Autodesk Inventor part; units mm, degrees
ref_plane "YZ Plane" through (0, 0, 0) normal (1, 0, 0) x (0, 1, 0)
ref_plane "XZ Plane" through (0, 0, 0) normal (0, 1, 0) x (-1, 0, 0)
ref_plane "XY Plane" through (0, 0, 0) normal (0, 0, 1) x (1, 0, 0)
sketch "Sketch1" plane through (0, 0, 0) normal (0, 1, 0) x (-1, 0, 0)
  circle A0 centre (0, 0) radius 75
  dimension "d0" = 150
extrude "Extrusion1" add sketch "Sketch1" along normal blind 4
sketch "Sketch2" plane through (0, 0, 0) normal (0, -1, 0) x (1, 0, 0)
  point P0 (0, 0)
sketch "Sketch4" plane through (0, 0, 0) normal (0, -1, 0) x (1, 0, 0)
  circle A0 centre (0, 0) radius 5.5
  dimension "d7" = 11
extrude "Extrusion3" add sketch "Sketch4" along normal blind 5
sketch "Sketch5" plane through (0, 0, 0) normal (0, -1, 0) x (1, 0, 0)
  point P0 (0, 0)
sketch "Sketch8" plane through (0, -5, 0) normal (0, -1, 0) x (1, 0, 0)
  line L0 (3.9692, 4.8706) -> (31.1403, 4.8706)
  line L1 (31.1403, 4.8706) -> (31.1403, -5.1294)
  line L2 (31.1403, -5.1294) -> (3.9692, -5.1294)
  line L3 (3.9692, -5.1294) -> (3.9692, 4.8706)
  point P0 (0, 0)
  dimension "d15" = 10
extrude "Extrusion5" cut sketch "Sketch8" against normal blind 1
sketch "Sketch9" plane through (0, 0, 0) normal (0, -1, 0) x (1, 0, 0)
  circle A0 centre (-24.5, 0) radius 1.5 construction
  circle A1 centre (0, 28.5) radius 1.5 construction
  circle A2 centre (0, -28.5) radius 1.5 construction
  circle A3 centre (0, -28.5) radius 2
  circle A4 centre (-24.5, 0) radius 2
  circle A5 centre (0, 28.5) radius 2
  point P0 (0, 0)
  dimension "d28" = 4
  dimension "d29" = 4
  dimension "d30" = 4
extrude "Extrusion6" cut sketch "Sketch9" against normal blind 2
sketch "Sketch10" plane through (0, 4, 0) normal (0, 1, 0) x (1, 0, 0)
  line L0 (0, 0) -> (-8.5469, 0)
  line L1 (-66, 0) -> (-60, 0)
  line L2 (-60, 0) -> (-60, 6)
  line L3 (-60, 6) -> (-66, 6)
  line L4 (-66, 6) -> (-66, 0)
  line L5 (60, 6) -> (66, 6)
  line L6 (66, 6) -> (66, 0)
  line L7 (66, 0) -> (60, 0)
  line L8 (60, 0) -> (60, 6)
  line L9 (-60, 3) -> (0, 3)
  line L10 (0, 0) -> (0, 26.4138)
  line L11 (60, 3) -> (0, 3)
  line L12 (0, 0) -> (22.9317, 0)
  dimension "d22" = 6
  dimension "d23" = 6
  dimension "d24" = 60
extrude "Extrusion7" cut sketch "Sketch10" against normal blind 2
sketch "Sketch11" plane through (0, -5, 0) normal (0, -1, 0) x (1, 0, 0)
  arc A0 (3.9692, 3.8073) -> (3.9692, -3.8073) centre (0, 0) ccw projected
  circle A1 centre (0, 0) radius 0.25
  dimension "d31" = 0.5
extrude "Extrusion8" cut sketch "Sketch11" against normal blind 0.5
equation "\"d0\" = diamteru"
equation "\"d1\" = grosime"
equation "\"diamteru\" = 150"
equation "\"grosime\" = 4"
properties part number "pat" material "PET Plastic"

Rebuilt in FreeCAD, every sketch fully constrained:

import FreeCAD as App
import Part
import Sketcher


def add_polygon(sketch, points):
    """Adds a closed chain of lines whose ends are joined by coincident constraints."""
    first, n = sketch.GeometryCount, len(points)
    for a, b in zip(points, points[1:] + points[:1]):
        sketch.addGeometry(Part.LineSegment(App.Vector(*a, 0), App.Vector(*b, 0)), False)
    for i in range(n):
        sketch.addConstraint(Sketcher.Constraint("Coincident", first + i, 2, first + (i + 1) % n, 1))

doc = App.newDocument("Part")
params = doc.addObject("Spreadsheet::Sheet", "Params")
for row, (alias, value) in enumerate([
    ("sketch1_diameter", "150 mm"),
    ("pad1_length", "4 mm"),
    ("sketch2_diameter", "11 mm"),
    ("pad2_length", "5 mm"),
    ("sketch3_height", "10 mm"),
    ("pocket1_length", "1 mm"),
    ("sketch4_diameter", "4 mm"),
    ("pocket2_length", "2 mm"),
    ("sketch5_width", "6 mm"),
    ("pocket3_length", "2 mm"),
    ("sketch6_diameter", "0.5 mm"),
    ("pocket4_length", "0.5 mm"),
], start=1):
    params.set(f"A{row}", alias)
    params.set(f"B{row}", "=" + value)
    params.setAlias(f"B{row}", alias)

body = doc.addObject("PartDesign::Body", "Body")

# Sketch on XZ plane
sketch1 = body.newObject("Sketcher::SketchObject", "Sketch")
sketch1.AttachmentSupport = (doc.getObject("XZ_Plane"), [""])
sketch1.MapMode = "FlatFace"
sketch1.addGeometry(Part.Circle(App.Vector(0, 0, 0), App.Vector(0, 0, 1), 75), False)
sketch1.addConstraint([
    Sketcher.Constraint("Coincident", 0, 3, -1, 1),
    Sketcher.Constraint("Diameter", 0, 150.0),
])
sketch1.setExpression("Constraints[1]", "Params.sketch1_diameter")
pad1 = body.newObject("PartDesign::Pad", "Pad")
pad1.Profile = sketch1
pad1.setExpression("Length", "Params.pad1_length")
pad1.Reversed = True

# Sketch on XZ plane
sketch2 = body.newObject("Sketcher::SketchObject", "Sketch001")
sketch2.AttachmentSupport = (doc.getObject("XZ_Plane"), [""])
sketch2.MapMode = "FlatFace"
sketch2.addGeometry(Part.Circle(App.Vector(0, 0, 0), App.Vector(0, 0, 1), 6), False)
sketch2.addConstraint([
    Sketcher.Constraint("Coincident", 0, 3, -1, 1),
    Sketcher.Constraint("Diameter", 0, 11.0),
])
sketch2.setExpression("Constraints[1]", "Params.sketch2_diameter")
pad2 = body.newObject("PartDesign::Pad", "Pad001")
pad2.Profile = sketch2
pad2.setExpression("Length", "Params.pad2_length")

# Sketch on XZ plane
sketch3 = body.newObject("Sketcher::SketchObject", "Sketch002")
sketch3.AttachmentSupport = (doc.getObject("XZ_Plane"), [""])
sketch3.MapMode = "FlatFace"
sketch3.AttachmentOffset = App.Placement(App.Vector(0, 0, 5), App.Rotation())
add_polygon(sketch3, [(31, 5), (4, 5), (4, -5), (31, -5)])  # lines 0-3
sketch3.addConstraint([
    Sketcher.Constraint("Horizontal", 0),
    Sketcher.Constraint("Vertical", 1),
    Sketcher.Constraint("Horizontal", 2),
    Sketcher.Constraint("Vertical", 3),
    Sketcher.Constraint("DistanceY", 1, 2, 1, 1, 10.0),
    Sketcher.Constraint("DistanceX", 0, 2, 0, 1, 27.171),
    Sketcher.Constraint("DistanceX", -1, 1, 0, 2, 3.9692),
    Sketcher.Constraint("DistanceY", -1, 1, 0, 2, 4.8706),
])
sketch3.setExpression("Constraints[8]", "Params.sketch3_height")
pocket1 = body.newObject("PartDesign::Pocket", "Pocket")
pocket1.Profile = sketch3
pocket1.setExpression("Length", "Params.pocket1_length")

# Sketch on XZ plane
sketch4 = body.newObject("Sketcher::SketchObject", "Sketch003")
sketch4.AttachmentSupport = (doc.getObject("XZ_Plane"), [""])
sketch4.MapMode = "FlatFace"
sketch4.addGeometry([
    Part.Circle(App.Vector(0, -28.5, 0), App.Vector(0, 0, 1), 2),
    Part.Circle(App.Vector(-24.5, 0, 0), App.Vector(0, 0, 1), 2),
    Part.Circle(App.Vector(0, 28.5, 0), App.Vector(0, 0, 1), 2),
], False)
sketch4.addConstraint([
    Sketcher.Constraint("Equal", 0, 1),
    Sketcher.Constraint("Equal", 1, 2),
    Sketcher.Constraint("Symmetric", 0, 3, 2, 3, -1, 1),
    Sketcher.Constraint("PointOnObject", 0, 3, -2),
    Sketcher.Constraint("PointOnObject", 1, 3, -1),
    Sketcher.Constraint("Diameter", 0, 4.0),
    Sketcher.Constraint("DistanceY", 0, 3, 2, 3, 57.0),
    Sketcher.Constraint("DistanceX", 1, 3, -1, 1, 24.5),
])
sketch4.setExpression("Constraints[5]", "Params.sketch4_diameter")
pocket2 = body.newObject("PartDesign::Pocket", "Pocket001")
pocket2.Profile = sketch4
pocket2.setExpression("Length", "Params.pocket2_length")

# Sketch on XZ plane
sketch5 = body.newObject("Sketcher::SketchObject", "Sketch004")
sketch5.AttachmentSupport = (doc.getObject("XZ_Plane"), [""])
sketch5.MapMode = "FlatFace"
sketch5.AttachmentOffset = App.Placement(App.Vector(0, 0, -4), App.Rotation())
add_polygon(sketch5, [(-66, -6), (-66, 0), (-60, 0), (-60, -6)])  # lines 0-3
add_polygon(sketch5, [(60, -6), (60, 0), (66, 0), (66, -6)])  # lines 4-7
sketch5.addConstraint([
    Sketcher.Constraint("Vertical", 0),
    Sketcher.Constraint("Horizontal", 1),
    Sketcher.Constraint("Vertical", 2),
    Sketcher.Constraint("Horizontal", 3),
    Sketcher.Constraint("Vertical", 4),
    Sketcher.Constraint("Horizontal", 5),
    Sketcher.Constraint("Vertical", 6),
    Sketcher.Constraint("Horizontal", 7),
    Sketcher.Constraint("Symmetric", 1, 2, 4, 2, -1, 1),
    Sketcher.Constraint("Symmetric", 0, 2, 5, 2, -2),
    Sketcher.Constraint("Horizontal", 3, 2, 6, 2),
    Sketcher.Constraint("Equal", 7, 0),
    Sketcher.Constraint("DistanceX", 1, 1, 1, 2, 6.0),
    Sketcher.Constraint("DistanceX", 1, 2, -1, 1, 60.0),
])
sketch5.setExpression("Constraints[20]", "Params.sketch5_width")
pocket3 = body.newObject("PartDesign::Pocket", "Pocket002")
pocket3.Profile = sketch5
pocket3.setExpression("Length", "Params.pocket3_length")
pocket3.Reversed = True

# Sketch on XZ plane
sketch6 = body.newObject("Sketcher::SketchObject", "Sketch005")
sketch6.AttachmentSupport = (doc.getObject("XZ_Plane"), [""])
sketch6.MapMode = "FlatFace"
sketch6.AttachmentOffset = App.Placement(App.Vector(0, 0, 5), App.Rotation())
sketch6.addGeometry(Part.Circle(App.Vector(0, 0, 0), App.Vector(0, 0, 1), 0.25), False)
sketch6.addConstraint([
    Sketcher.Constraint("Coincident", 0, 3, -1, 1),
    Sketcher.Constraint("Diameter", 0, 0.5),
])
sketch6.setExpression("Constraints[1]", "Params.sketch6_diameter")
pocket4 = body.newObject("PartDesign::Pocket", "Pocket003")
pocket4.Profile = sketch6
pocket4.setExpression("Length", "Params.pocket4_length")

doc.recompute()
